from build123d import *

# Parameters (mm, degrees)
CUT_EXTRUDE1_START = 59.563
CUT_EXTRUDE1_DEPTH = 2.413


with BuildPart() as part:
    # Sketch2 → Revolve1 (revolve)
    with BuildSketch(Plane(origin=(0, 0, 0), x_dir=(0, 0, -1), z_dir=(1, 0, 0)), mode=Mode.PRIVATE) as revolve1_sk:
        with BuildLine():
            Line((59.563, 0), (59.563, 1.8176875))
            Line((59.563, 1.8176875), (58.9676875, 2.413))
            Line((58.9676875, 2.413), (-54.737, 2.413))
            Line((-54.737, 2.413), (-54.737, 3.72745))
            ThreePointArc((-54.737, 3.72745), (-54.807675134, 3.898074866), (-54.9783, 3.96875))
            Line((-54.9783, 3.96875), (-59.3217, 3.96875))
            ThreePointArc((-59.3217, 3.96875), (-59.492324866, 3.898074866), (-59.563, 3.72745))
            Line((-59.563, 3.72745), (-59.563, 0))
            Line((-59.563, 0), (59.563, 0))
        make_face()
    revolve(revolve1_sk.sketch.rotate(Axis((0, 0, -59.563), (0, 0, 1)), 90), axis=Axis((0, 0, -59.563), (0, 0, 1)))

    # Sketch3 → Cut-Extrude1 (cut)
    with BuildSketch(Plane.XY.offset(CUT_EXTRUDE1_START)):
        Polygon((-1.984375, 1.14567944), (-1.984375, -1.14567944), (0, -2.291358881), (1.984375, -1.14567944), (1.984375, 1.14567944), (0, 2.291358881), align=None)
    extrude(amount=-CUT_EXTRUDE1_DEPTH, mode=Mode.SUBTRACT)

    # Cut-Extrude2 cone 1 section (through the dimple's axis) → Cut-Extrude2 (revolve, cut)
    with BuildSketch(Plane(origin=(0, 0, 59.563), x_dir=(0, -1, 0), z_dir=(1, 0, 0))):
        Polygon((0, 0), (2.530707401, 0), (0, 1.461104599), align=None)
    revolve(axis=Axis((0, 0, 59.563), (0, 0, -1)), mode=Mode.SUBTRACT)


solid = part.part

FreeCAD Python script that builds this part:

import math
import FreeCAD as App
import Part
import Sketcher
from FreeCAD import Vector
Q = App.Units.Quantity

doc = App.newDocument("Part")
body = doc.addObject("PartDesign::Body", "Body")

sketch1 = body.newObject("Sketcher::SketchObject", "Sketch")
sketch1.AttachmentSupport = (doc.getObject("YZ_Plane"), [""])
sketch1.MapMode = "FlatFace"
sketch1.addGeometry([
    Part.LineSegment(Vector(0, -59.56, 0), Vector(1.82, -59.56, 0)),
    Part.LineSegment(Vector(1.82, -59.56, 0), Vector(2.41, -58.97, 0)),
    Part.LineSegment(Vector(2.41, -58.97, 0), Vector(2.41, 54.74, 0)),
    Part.LineSegment(Vector(2.41, 54.74, 0), Vector(3.73, 54.74, 0)),
    Part.ArcOfCircle(Part.Circle(Vector(3.73, 54.98, 0), Vector(0, 0, 1), 0.24), math.radians(-90), math.radians(0)),
    Part.LineSegment(Vector(3.97, 54.98, 0), Vector(3.97, 59.32, 0)),
    Part.ArcOfCircle(Part.Circle(Vector(3.73, 59.32, 0), Vector(0, 0, 1), 0.24), math.radians(0), math.radians(90)),
    Part.LineSegment(Vector(3.73, 59.56, 0), Vector(0, 59.56, 0)),
    Part.LineSegment(Vector(0, 59.56, 0), Vector(0, -59.56, 0)),
], False)
sketch1.addConstraint([
    Sketcher.Constraint("Coincident", 0, 2, 1, 1),
    Sketcher.Constraint("Coincident", 1, 2, 2, 1),
    Sketcher.Constraint("Coincident", 2, 2, 3, 1),
    Sketcher.Constraint("Tangent", 3, 2, 4, 1),
    Sketcher.Constraint("Tangent", 4, 2, 5, 1),
    Sketcher.Constraint("Tangent", 5, 2, 6, 1),
    Sketcher.Constraint("Tangent", 6, 2, 7, 1),
    Sketcher.Constraint("Coincident", 7, 2, 8, 1),
    Sketcher.Constraint("Coincident", 8, 2, 0, 1),
    Sketcher.Constraint("Horizontal", 0),
    Sketcher.Constraint("Vertical", 2),
    Sketcher.Constraint("Horizontal", 3),
    Sketcher.Constraint("Vertical", 5),
    Sketcher.Constraint("Horizontal", 7),
    Sketcher.Constraint("Vertical", 8),
    Sketcher.Constraint("Equal", 4, 6),
    Sketcher.Constraint("Symmetric", 7, 2, 8, 2, -1, 1),
    Sketcher.Constraint("Angle", 1, Q("45 deg")),
    Sketcher.Constraint("DistanceY", 8, 2, 8, 1, Q("4.69 in")),
    Sketcher.Constraint("Radius", 4, Q("0.0095 in")),
    Sketcher.Constraint("DistanceY", 0, 2, 2, 2, Q("4.5 in")),
    Sketcher.Constraint("DistanceX", -1, 1, 1, 2, Q("0.095 in")),
    Sketcher.Constraint("DistanceX", -1, 1, 4, 2, Q("0.15625 in")),
    Sketcher.Constraint("Distance", 1, 0.841899),
])
revolution = body.newObject("PartDesign::Revolution", "Revolution")
revolution.Profile = sketch1
revolution.ReferenceAxis = (sketch1, ["V_Axis"])
revolution.Angle = 360

sketch2 = body.newObject("Sketcher::SketchObject", "Sketch001")
sketch2.AttachmentSupport = (doc.getObject("XY_Plane"), [""])
sketch2.MapMode = "FlatFace"
sketch2.AttachmentOffset = App.Placement(Vector(0, 0, 2.345 * 25.4), App.Rotation())
sketch2.addGeometry([
    Part.LineSegment(Vector(-2, 1.1, 0), Vector(-2, -1.1, 0)),
    Part.LineSegment(Vector(-2, -1.1, 0), Vector(0, -2.3, 0)),
    Part.LineSegment(Vector(0, -2.3, 0), Vector(2, -1.1, 0)),
    Part.LineSegment(Vector(2, -1.1, 0), Vector(2, 1.1, 0)),
    Part.LineSegment(Vector(2, 1.1, 0), Vector(0, 2.3, 0)),
    Part.LineSegment(Vector(0, 2.3, 0), Vector(-2, 1.1, 0)),
], False)
sketch2.addConstraint([
    Sketcher.Constraint("Coincident", 0, 2, 1, 1),
    Sketcher.Constraint("Coincident", 1, 2, 2, 1),
    Sketcher.Constraint("Coincident", 2, 2, 3, 1),
    Sketcher.Constraint("Coincident", 3, 2, 4, 1),
    Sketcher.Constraint("Coincident", 4, 2, 5, 1),
    Sketcher.Constraint("Coincident", 5, 2, 0, 1),
    Sketcher.Constraint("Vertical", 0),
    Sketcher.Constraint("Vertical", 3),
    Sketcher.Constraint("Symmetric", 0, 2, 3, 2, -1, 1),
    Sketcher.Constraint("Symmetric", 1, 2, 4, 2, -1, 1),
    Sketcher.Constraint("PointOnObject", 1, 2, -2),
    Sketcher.Constraint("Parallel", 2, 5),
    Sketcher.Constraint("Horizontal", 0, 2, 2, 2),
    Sketcher.Constraint("Angle", 1, Q("-30 deg")),
    Sketcher.Constraint("DistanceX", 0, 2, -1, 1, Q("0.078125 in")),
    Sketcher.Constraint("DistanceY", 0, 2, 0, 1, 2.291359),
])
pocket1 = body.newObject("PartDesign::Pocket", "Pocket")
pocket1.Profile = sketch2
pocket1.Length = Q("0.095 in")

sketch3 = body.newObject("Sketcher::SketchObject", "Sketch002")
sketch3.AttachmentSupport = (doc.getObject("YZ_Plane"), [""])
sketch3.MapMode = "FlatFace"
sketch3.addGeometry([
    Part.LineSegment(Vector(0, 59.6, 0), Vector(-2.5, 59.6, 0)),
    Part.LineSegment(Vector(-2.5, 59.6, 0), Vector(0, 58.1, 0)),
    Part.LineSegment(Vector(0, 58.1, 0), Vector(0, 59.6, 0)),
], False)
sketch3.addConstraint([
    Sketcher.Constraint("Coincident", 0, 2, 1, 1),
    Sketcher.Constraint("Coincident", 1, 2, 2, 1),
    Sketcher.Constraint("Coincident", 2, 2, 0, 1),
    Sketcher.Constraint("Horizontal", 0),
    Sketcher.Constraint("Vertical", 2),
    Sketcher.Constraint("PointOnObject", 1, 2, -2),
    Sketcher.Constraint("Angle", 1, Q("-30 deg")),
    Sketcher.Constraint("DistanceY", -1, 1, 0, 2, Q("2.345 in")),
    Sketcher.Constraint("Distance", 1, 2.922209),
])
groove = body.newObject("PartDesign::Groove", "Groove")
groove.Profile = sketch3
groove.ReferenceAxis = (sketch3, ["V_Axis"])
groove.Angle = 360

doc.recompute()
